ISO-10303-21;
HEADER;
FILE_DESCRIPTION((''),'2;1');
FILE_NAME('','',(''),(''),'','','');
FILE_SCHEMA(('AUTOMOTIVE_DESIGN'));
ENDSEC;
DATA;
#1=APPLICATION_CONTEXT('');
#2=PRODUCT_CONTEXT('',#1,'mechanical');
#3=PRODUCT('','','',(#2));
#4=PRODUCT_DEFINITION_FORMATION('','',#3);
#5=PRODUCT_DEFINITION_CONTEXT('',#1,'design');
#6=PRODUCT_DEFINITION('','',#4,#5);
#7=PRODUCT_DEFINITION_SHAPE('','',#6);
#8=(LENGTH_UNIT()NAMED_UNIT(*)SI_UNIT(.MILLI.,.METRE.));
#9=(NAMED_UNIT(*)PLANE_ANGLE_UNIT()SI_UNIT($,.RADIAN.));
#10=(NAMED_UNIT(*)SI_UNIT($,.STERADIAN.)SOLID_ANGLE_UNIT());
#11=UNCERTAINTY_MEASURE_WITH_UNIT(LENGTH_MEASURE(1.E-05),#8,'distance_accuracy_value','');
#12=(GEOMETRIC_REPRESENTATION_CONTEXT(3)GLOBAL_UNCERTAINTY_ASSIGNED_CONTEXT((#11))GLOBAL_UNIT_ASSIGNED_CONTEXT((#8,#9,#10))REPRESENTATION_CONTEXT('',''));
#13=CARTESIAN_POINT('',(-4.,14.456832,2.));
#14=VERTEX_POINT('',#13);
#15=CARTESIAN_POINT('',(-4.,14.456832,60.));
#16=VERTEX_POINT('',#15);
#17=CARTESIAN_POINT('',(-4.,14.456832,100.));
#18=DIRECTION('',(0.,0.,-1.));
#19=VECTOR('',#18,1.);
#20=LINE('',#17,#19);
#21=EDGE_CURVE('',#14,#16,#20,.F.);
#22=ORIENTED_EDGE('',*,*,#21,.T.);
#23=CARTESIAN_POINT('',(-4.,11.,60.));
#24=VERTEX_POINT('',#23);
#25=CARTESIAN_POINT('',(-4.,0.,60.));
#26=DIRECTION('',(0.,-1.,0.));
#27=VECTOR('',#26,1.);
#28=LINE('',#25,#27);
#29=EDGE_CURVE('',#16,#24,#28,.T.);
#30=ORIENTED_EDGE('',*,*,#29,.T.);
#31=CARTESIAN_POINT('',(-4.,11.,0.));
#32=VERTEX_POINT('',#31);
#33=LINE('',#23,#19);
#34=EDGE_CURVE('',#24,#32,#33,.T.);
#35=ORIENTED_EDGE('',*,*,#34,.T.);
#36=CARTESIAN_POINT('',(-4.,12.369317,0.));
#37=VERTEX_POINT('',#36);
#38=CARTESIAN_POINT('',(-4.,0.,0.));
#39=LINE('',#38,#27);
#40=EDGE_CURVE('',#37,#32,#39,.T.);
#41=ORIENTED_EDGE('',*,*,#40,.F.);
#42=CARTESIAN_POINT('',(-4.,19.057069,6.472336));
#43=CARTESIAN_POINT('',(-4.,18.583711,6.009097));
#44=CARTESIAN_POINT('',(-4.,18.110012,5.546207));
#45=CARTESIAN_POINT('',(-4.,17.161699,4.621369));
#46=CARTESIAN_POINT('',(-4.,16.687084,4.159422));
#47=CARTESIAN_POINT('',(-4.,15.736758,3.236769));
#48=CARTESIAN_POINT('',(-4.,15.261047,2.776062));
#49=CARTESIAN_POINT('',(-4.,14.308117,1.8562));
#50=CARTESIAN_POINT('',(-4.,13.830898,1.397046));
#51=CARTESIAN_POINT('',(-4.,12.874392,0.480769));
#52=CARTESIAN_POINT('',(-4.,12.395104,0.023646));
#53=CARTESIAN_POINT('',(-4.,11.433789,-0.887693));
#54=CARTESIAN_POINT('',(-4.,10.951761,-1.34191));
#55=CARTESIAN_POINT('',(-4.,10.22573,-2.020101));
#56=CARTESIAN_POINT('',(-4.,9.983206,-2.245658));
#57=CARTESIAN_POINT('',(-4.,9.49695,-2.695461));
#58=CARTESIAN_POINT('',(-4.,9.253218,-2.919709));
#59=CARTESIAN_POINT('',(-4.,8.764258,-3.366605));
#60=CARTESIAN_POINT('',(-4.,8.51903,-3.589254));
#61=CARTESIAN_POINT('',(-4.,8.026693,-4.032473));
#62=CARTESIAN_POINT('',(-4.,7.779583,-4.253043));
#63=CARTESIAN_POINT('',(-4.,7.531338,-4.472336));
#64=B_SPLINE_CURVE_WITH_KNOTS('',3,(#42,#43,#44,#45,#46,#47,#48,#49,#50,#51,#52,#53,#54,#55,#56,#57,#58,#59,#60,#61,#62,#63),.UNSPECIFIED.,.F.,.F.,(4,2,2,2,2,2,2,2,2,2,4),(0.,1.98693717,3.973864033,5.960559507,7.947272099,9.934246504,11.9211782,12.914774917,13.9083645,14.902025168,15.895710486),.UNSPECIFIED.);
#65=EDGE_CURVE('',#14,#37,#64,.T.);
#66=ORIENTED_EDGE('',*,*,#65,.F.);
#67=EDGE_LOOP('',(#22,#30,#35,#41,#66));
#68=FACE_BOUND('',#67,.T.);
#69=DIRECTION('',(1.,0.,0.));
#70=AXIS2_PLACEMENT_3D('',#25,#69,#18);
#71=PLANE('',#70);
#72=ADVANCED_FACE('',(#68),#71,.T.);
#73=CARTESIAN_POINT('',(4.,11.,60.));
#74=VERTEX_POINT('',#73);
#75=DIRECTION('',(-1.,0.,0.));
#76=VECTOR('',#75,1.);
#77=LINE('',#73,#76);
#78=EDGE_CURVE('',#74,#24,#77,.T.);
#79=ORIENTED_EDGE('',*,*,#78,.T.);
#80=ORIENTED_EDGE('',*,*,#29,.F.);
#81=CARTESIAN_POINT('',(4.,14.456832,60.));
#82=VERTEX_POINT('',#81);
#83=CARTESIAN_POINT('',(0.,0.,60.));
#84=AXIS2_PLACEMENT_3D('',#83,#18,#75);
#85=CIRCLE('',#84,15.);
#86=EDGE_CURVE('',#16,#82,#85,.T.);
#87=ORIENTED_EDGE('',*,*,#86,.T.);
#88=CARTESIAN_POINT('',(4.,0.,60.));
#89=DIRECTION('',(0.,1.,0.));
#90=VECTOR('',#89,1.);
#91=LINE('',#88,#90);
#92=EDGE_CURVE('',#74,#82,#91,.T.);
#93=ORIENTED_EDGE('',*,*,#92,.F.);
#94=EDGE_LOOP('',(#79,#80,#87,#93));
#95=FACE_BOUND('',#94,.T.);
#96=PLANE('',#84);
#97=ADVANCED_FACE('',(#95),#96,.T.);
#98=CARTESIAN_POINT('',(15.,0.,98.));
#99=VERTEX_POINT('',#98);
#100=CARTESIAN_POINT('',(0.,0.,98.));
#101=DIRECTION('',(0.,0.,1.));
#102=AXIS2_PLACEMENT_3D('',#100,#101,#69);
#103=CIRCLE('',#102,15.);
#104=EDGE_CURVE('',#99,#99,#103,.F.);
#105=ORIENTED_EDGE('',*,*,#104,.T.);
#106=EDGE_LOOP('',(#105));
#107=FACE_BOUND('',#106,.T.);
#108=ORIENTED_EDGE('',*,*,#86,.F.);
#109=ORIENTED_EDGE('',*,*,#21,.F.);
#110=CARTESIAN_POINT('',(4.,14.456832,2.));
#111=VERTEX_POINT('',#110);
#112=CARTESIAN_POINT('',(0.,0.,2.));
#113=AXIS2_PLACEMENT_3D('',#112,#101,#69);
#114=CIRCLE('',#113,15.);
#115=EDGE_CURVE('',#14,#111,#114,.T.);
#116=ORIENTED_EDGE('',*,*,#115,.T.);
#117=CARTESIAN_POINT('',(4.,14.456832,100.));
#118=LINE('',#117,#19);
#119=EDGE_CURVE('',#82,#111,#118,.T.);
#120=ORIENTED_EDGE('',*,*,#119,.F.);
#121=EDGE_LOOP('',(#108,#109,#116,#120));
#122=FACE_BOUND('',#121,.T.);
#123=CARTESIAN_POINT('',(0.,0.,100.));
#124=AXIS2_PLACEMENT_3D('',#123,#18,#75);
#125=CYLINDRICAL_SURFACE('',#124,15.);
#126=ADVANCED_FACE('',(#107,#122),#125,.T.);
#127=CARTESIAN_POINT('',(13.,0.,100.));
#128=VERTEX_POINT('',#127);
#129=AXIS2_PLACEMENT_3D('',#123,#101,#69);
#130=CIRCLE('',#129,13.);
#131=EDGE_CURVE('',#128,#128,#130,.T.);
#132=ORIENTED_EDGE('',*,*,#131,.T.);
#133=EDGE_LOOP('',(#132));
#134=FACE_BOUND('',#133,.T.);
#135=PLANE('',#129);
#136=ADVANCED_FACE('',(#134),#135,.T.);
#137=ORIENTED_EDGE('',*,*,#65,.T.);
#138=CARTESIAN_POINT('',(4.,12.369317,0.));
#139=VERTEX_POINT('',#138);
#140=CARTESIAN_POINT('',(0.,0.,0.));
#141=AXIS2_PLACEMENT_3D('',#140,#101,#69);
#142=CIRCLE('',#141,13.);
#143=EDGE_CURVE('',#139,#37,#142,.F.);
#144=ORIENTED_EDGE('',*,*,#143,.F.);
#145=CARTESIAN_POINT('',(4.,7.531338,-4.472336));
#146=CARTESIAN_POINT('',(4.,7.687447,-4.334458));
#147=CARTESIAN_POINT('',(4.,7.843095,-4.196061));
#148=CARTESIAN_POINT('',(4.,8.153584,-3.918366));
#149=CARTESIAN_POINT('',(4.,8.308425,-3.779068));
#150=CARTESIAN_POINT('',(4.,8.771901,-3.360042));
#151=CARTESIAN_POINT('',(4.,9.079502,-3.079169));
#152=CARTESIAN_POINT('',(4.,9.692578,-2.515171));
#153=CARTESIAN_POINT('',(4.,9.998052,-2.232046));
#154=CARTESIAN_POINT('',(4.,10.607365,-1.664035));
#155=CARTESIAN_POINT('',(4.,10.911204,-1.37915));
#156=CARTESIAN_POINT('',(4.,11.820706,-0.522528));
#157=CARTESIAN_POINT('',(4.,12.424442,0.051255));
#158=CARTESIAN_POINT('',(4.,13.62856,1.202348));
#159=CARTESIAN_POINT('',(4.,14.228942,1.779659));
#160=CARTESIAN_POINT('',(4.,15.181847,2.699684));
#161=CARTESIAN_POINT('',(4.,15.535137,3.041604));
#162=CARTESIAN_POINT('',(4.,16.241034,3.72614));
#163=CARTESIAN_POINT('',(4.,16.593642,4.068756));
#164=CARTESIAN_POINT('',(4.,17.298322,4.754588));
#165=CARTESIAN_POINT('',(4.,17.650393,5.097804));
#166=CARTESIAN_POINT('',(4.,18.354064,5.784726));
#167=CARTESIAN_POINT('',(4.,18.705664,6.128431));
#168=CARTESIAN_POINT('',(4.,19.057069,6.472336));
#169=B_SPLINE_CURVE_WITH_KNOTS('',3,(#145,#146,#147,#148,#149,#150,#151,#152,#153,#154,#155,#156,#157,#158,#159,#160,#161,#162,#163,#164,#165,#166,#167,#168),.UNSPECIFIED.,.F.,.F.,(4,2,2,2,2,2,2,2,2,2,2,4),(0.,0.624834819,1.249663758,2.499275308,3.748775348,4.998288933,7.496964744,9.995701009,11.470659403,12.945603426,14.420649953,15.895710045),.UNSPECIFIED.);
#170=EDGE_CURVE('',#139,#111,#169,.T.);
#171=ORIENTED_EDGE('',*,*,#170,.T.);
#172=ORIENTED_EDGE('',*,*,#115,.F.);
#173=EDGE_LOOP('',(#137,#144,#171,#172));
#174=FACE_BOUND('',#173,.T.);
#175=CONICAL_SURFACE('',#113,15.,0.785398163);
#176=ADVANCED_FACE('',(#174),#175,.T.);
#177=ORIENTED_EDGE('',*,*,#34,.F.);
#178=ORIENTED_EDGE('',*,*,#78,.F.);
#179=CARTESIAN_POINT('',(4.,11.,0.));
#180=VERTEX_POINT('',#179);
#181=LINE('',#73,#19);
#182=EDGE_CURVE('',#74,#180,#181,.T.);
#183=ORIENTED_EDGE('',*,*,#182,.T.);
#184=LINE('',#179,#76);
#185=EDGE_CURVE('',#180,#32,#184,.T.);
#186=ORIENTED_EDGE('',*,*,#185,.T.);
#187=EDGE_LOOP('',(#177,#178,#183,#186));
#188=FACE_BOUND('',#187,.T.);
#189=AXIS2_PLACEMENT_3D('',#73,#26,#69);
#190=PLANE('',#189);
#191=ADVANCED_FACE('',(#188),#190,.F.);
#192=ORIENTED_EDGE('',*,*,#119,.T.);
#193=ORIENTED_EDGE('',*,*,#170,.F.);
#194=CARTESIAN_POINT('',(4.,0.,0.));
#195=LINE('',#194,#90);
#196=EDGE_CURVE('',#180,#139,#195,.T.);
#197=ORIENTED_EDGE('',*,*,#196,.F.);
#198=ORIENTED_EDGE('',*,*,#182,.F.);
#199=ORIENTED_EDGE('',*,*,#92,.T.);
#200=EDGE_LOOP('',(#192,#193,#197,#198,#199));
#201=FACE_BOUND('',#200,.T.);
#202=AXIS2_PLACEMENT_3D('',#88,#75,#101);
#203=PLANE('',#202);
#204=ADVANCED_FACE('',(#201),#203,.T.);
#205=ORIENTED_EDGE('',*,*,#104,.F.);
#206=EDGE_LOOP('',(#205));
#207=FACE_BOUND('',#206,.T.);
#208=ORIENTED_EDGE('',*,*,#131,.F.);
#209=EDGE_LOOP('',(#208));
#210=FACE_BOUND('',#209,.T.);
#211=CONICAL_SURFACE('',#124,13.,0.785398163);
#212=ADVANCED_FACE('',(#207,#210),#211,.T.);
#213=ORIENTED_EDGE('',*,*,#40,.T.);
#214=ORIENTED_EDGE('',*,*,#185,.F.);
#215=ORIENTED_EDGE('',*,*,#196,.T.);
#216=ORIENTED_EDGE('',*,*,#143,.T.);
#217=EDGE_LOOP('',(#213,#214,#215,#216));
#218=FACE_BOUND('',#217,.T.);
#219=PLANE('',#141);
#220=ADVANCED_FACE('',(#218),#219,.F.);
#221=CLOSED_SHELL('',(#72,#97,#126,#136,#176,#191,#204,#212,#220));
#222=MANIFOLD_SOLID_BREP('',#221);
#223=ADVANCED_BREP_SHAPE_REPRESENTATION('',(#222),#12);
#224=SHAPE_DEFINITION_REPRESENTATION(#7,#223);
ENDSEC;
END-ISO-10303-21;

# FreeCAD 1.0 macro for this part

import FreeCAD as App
import Part
import Sketcher

V = App.Vector
Q = App.Units.Quantity


def edges_at(feature, points):
    """Names of the edges that pass closest to the given points."""
    edges = feature.Shape.Edges
    near = lambda p: min(range(len(edges)), key=lambda i: edges[i].distToShape(Part.Vertex(*p))[0])
    return sorted({f"Edge{near(p) + 1}" for p in points})


def add_polygon(sketch, points):
    """Adds a closed chain of lines whose ends are joined by coincident constraints."""
    first, n = sketch.GeometryCount, len(points)
    for a, b in zip(points, points[1:] + points[:1]):
        sketch.addGeometry(Part.LineSegment(App.Vector(*a, 0), App.Vector(*b, 0)), False)
    for i in range(n):
        sketch.addConstraint(Sketcher.Constraint("Coincident", first + i, 2, first + (i + 1) % n, 1))

doc = App.newDocument("Part")
body = doc.addObject("PartDesign::Body", "Body")

sketch1 = body.newObject("Sketcher::SketchObject", "Sketch")
sketch1.AttachmentSupport = (doc.getObject("XY_Plane"), [""])
sketch1.MapMode = "FlatFace"
sketch1.addGeometry(Part.Circle(V(0, 0, 0), V(0, 0, 1), 15), False)
sketch1.addConstraint(Sketcher.Constraint("Coincident", 0, 3, -1, 1))
sketch1.addConstraint(Sketcher.Constraint("Diameter", 0, Q("30 mm")))
pad1 = body.newObject("PartDesign::Pad", "Pad")
pad1.Profile = sketch1
pad1.Length = 100
doc.recompute()

chamfer = body.newObject("PartDesign::Chamfer", "Chamfer")
chamfer.Base = (pad1, edges_at(pad1, [(-15, 0, 100)]))
chamfer.Size = 2
doc.recompute()

chamfer2 = body.newObject("PartDesign::Chamfer", "Chamfer001")
chamfer2.Base = (chamfer, edges_at(chamfer, [(-15, 0, 0)]))
chamfer2.Size = 2

sketch2 = body.newObject("Sketcher::SketchObject", "Sketch001")
sketch2.AttachmentSupport = (doc.getObject("XY_Plane"), [""])
sketch2.MapMode = "FlatFace"
add_polygon(sketch2, [(4, 11), (-4, 11), (-4, 16.003422), (4, 16.003422)])
sketch2.addConstraint(Sketcher.Constraint("Horizontal", 0))
sketch2.addConstraint(Sketcher.Constraint("Vertical", 1))
sketch2.addConstraint(Sketcher.Constraint("Horizontal", 2))
sketch2.addConstraint(Sketcher.Constraint("Vertical", 3))
sketch2.addConstraint(Sketcher.Constraint("DistanceX", 0, 2, 0, 1, Q("8 mm")))
sketch2.addConstraint(Sketcher.Constraint("DistanceX", 0, 2, -1, 1, Q("4 mm")))
sketch2.addConstraint(Sketcher.Constraint("DistanceY", -1, 1, 0, 2, Q("11 mm")))
sketch2.addConstraint(Sketcher.Constraint("DistanceY", 1, 1, 1, 2, Q("5.003422 mm")))
pocket1 = body.newObject("PartDesign::Pocket", "Pocket")
pocket1.Profile = sketch2
pocket1.Length = 60
pocket1.Reversed = True

doc.recompute()
